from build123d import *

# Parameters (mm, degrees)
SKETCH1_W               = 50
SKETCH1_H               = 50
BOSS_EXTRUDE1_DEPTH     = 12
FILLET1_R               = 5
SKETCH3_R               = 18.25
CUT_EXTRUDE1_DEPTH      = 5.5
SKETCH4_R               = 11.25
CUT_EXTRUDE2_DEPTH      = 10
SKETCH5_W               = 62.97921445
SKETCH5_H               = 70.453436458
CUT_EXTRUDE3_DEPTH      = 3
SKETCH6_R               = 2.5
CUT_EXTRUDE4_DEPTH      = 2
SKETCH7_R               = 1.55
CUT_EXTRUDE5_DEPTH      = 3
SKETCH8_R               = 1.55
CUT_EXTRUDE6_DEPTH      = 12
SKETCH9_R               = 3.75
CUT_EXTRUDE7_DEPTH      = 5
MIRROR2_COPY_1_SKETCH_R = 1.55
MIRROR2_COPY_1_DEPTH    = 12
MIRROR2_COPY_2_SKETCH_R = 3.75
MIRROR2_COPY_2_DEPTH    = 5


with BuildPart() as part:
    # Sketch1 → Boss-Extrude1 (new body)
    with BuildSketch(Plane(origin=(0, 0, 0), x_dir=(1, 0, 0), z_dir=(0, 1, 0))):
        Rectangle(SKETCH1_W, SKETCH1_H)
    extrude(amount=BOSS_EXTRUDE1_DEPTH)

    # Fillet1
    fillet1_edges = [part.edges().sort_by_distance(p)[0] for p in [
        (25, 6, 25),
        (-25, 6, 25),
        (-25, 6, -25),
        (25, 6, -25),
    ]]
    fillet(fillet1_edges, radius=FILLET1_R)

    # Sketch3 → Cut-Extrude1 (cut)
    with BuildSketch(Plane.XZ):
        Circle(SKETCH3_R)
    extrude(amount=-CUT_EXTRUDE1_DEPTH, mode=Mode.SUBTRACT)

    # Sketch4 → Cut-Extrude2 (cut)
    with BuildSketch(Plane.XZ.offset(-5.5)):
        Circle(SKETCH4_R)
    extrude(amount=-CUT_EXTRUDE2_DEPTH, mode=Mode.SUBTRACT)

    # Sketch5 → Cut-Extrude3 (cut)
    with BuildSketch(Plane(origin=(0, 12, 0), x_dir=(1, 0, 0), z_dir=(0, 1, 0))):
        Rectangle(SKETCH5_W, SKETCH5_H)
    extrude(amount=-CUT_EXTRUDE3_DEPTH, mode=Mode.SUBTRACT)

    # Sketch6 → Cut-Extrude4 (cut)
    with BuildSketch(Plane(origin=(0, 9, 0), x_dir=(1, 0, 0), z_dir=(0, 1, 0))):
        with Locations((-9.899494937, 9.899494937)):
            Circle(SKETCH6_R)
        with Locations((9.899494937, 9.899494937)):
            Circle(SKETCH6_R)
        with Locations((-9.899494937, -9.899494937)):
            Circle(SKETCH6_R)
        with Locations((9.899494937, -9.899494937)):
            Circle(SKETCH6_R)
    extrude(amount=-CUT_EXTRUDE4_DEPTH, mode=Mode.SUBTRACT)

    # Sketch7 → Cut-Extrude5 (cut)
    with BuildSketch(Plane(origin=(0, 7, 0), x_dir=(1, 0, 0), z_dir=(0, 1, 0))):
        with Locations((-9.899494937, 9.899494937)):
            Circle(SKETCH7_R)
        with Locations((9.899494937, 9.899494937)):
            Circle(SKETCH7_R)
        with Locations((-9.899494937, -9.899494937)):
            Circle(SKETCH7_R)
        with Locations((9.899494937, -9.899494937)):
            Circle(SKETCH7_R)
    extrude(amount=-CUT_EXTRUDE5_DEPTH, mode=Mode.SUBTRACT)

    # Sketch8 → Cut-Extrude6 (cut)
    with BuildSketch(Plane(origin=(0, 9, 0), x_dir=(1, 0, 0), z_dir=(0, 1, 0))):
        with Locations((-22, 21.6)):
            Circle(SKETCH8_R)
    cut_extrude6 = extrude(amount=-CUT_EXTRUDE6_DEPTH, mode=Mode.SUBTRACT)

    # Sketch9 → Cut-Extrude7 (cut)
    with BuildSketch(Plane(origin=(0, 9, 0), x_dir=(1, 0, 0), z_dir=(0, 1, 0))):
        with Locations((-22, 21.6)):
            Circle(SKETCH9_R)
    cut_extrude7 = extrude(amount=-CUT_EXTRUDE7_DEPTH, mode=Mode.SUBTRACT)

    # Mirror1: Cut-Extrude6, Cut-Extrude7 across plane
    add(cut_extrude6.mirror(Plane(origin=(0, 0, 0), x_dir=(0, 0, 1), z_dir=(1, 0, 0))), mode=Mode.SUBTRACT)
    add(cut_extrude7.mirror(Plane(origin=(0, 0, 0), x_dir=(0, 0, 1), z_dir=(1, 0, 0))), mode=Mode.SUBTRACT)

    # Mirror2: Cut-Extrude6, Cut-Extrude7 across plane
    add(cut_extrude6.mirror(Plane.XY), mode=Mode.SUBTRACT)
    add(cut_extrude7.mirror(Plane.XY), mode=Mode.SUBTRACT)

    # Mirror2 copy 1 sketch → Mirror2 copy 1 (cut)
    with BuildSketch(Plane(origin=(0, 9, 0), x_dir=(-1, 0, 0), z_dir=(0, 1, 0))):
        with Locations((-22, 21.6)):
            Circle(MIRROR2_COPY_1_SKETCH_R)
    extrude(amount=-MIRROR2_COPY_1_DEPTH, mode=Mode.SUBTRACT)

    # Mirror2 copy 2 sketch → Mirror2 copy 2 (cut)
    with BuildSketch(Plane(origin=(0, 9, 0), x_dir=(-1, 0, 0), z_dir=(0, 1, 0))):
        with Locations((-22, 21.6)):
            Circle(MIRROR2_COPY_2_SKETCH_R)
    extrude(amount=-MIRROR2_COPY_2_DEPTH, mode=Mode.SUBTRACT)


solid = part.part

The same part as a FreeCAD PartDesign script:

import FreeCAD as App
import Part
import Sketcher
from FreeCAD import Vector
Q = App.Units.Quantity


def edges_at(feature, points):
    """Names of the edges that pass closest to the given points."""
    edges = feature.Shape.Edges
    near = lambda p: min(range(len(edges)), key=lambda i: edges[i].distToShape(Part.Vertex(*p))[0])
    return sorted({f"Edge{near(p) + 1}" for p in points})


def add_polygon(sketch, points):
    """Adds a closed chain of lines whose ends are joined by coincident constraints."""
    first, n = sketch.GeometryCount, len(points)
    for a, b in zip(points, points[1:] + points[:1]):
        sketch.addGeometry(Part.LineSegment(App.Vector(*a, 0), App.Vector(*b, 0)), False)
    for i in range(n):
        sketch.addConstraint(Sketcher.Constraint("Coincident", first + i, 2, first + (i + 1) % n, 1))

doc = App.newDocument("Part")
body = doc.addObject("PartDesign::Body", "Body")

sketch1 = body.newObject("Sketcher::SketchObject", "Sketch")
sketch1.AttachmentSupport = (doc.getObject("XZ_Plane"), [""])
sketch1.MapMode = "FlatFace"
add_polygon(sketch1, [(-25, -25), (-25, 25), (25, 25), (25, -25)])
sketch1.addConstraint([
    Sketcher.Constraint("Vertical", 0),
    Sketcher.Constraint("Horizontal", 1),
    Sketcher.Constraint("Vertical", 2),
    Sketcher.Constraint("Horizontal", 3),
    Sketcher.Constraint("Symmetric", 0, 2, 2, 2, -1, 1),
    Sketcher.Constraint("Equal", 3, 0),
    Sketcher.Constraint("DistanceX", 1, 1, 1, 2, Q("50 mm")),
])
pad1 = body.newObject("PartDesign::Pad", "Pad")
pad1.Profile = sketch1
pad1.Length = 12
pad1.Reversed = True
doc.recompute()

fillet = body.newObject("PartDesign::Fillet", "Fillet")
fillet.Base = (pad1, edges_at(pad1, [
    (25, 6, 25),
    (-25, 6, 25),
    (-25, 6, -25),
    (25, 6, -25),
]))
fillet.Radius = 5

sketch2 = body.newObject("Sketcher::SketchObject", "Sketch001")
sketch2.AttachmentSupport = (doc.getObject("XZ_Plane"), [""])
sketch2.MapMode = "FlatFace"
sketch2.addGeometry(Part.Circle(Vector(0, 0, 0), Vector(0, 0, 1), 18.25), False)
sketch2.addConstraint([
    Sketcher.Constraint("Coincident", 0, 3, -1, 1),
    Sketcher.Constraint("Diameter", 0, Q("36.5 mm")),
])
pocket1 = body.newObject("PartDesign::Pocket", "Pocket")
pocket1.Profile = sketch2
pocket1.Length = 5.5

sketch3 = body.newObject("Sketcher::SketchObject", "Sketch002")
sketch3.AttachmentSupport = (doc.getObject("XZ_Plane"), [""])
sketch3.MapMode = "FlatFace"
sketch3.AttachmentOffset = App.Placement(Vector(0, 0, -5.5), App.Rotation())
sketch3.addGeometry(Part.Circle(Vector(0, 0, 0), Vector(0, 0, 1), 11.25), False)
sketch3.addConstraint([
    Sketcher.Constraint("Coincident", 0, 3, -1, 1),
    Sketcher.Constraint("Diameter", 0, Q("22.5 mm")),
])
pocket2 = body.newObject("PartDesign::Pocket", "Pocket001")
pocket2.Profile = sketch3
pocket2.Length = 10

sketch4 = body.newObject("Sketcher::SketchObject", "Sketch003")
sketch4.AttachmentSupport = (doc.getObject("XZ_Plane"), [""])
sketch4.MapMode = "FlatFace"
sketch4.AttachmentOffset = App.Placement(Vector(0, 0, -12), App.Rotation())
add_polygon(sketch4, [(-31.489607, -35.226718), (-31.489607, 35.226718), (31.489607, 35.226718), (31.489607, -35.226718)])
sketch4.addConstraint([
    Sketcher.Constraint("Vertical", 0),
    Sketcher.Constraint("Horizontal", 1),
    Sketcher.Constraint("Vertical", 2),
    Sketcher.Constraint("Horizontal", 3),
    Sketcher.Constraint("Symmetric", 0, 2, 2, 2, -1, 1),
    Sketcher.Constraint("DistanceX", 1, 1, 1, 2, Q("62.979214 mm")),
    Sketcher.Constraint("DistanceY", 0, 1, 0, 2, Q("70.453436 mm")),
])
pocket3 = body.newObject("PartDesign::Pocket", "Pocket002")
pocket3.Profile = sketch4
pocket3.Length = 3
pocket3.Reversed = True

sketch5 = body.newObject("Sketcher::SketchObject", "Sketch004")
sketch5.AttachmentSupport = (doc.getObject("XZ_Plane"), [""])
sketch5.MapMode = "FlatFace"
sketch5.AttachmentOffset = App.Placement(Vector(0, 0, -9), App.Rotation())
sketch5.addGeometry([
    Part.Circle(Vector(-9.899495, -9.899495, 0), Vector(0, 0, 1), 2.5),
    Part.Circle(Vector(9.899495, -9.899495, 0), Vector(0, 0, 1), 2.5),
    Part.Circle(Vector(-9.899495, 9.899495, 0), Vector(0, 0, 1), 2.5),
    Part.Circle(Vector(9.899495, 9.899495, 0), Vector(0, 0, 1), 2.5),
], False)
sketch5.addConstraint([
    Sketcher.Constraint("Equal", 0, 1),
    Sketcher.Constraint("Equal", 1, 2),
    Sketcher.Constraint("Equal", 2, 3),
    Sketcher.Constraint("Symmetric", 1, 3, 2, 3, -1, 1),
    Sketcher.Constraint("Symmetric", 0, 3, 3, 3, -1, 1),
    Sketcher.Constraint("Symmetric", 0, 3, 1, 3, -2),
    Sketcher.Constraint("Diameter", 0, Q("5 mm")),
    Sketcher.Constraint("DistanceX", 0, 3, 1, 3, Q("19.79899 mm")),
    Sketcher.Constraint("DistanceY", 0, 3, 2, 3, Q("19.79899 mm")),
])
pocket4 = body.newObject("PartDesign::Pocket", "Pocket003")
pocket4.Profile = sketch5
pocket4.Length = 2
pocket4.Reversed = True

sketch6 = body.newObject("Sketcher::SketchObject", "Sketch005")
sketch6.AttachmentSupport = (doc.getObject("XZ_Plane"), [""])
sketch6.MapMode = "FlatFace"
sketch6.AttachmentOffset = App.Placement(Vector(0, 0, -7), App.Rotation())
sketch6.addGeometry([
    Part.Circle(Vector(-9.899495, -9.899495, 0), Vector(0, 0, 1), 1.55),
    Part.Circle(Vector(9.899495, -9.899495, 0), Vector(0, 0, 1), 1.55),
    Part.Circle(Vector(-9.899495, 9.899495, 0), Vector(0, 0, 1), 1.55),
    Part.Circle(Vector(9.899495, 9.899495, 0), Vector(0, 0, 1), 1.55),
], False)
sketch6.addConstraint([
    Sketcher.Constraint("Equal", 0, 1),
    Sketcher.Constraint("Equal", 1, 2),
    Sketcher.Constraint("Equal", 2, 3),
    Sketcher.Constraint("Symmetric", 1, 3, 2, 3, -1, 1),
    Sketcher.Constraint("Symmetric", 0, 3, 3, 3, -1, 1),
    Sketcher.Constraint("Symmetric", 0, 3, 1, 3, -2),
    Sketcher.Constraint("Diameter", 0, Q("3.1 mm")),
    Sketcher.Constraint("DistanceX", 0, 3, 1, 3, Q("19.79899 mm")),
    Sketcher.Constraint("DistanceY", 0, 3, 2, 3, Q("19.79899 mm")),
])
pocket5 = body.newObject("PartDesign::Pocket", "Pocket004")
pocket5.Profile = sketch6
pocket5.Length = 3
pocket5.Reversed = True

sketch7 = body.newObject("Sketcher::SketchObject", "Sketch006")
sketch7.AttachmentSupport = (doc.getObject("XZ_Plane"), [""])
sketch7.MapMode = "FlatFace"
sketch7.AttachmentOffset = App.Placement(Vector(0, 0, -9), App.Rotation())
sketch7.addGeometry(Part.Circle(Vector(-22, -21.6, 0), Vector(0, 0, 1), 1.55), False)
sketch7.addConstraint([
    Sketcher.Constraint("Diameter", 0, Q("3.1 mm")),
    Sketcher.Constraint("DistanceX", 0, 3, -1, 1, Q("22 mm")),
    Sketcher.Constraint("DistanceY", 0, 3, -1, 1, Q("21.6 mm")),
])
pocket6 = body.newObject("PartDesign::Pocket", "Pocket005")
pocket6.Profile = sketch7
pocket6.Length = 12
pocket6.Reversed = True

sketch8 = body.newObject("Sketcher::SketchObject", "Sketch007")
sketch8.AttachmentSupport = (doc.getObject("XZ_Plane"), [""])
sketch8.MapMode = "FlatFace"
sketch8.AttachmentOffset = App.Placement(Vector(0, 0, -9), App.Rotation())
sketch8.addGeometry(Part.Circle(Vector(-22, -21.6, 0), Vector(0, 0, 1), 3.75), False)
sketch8.addConstraint([
    Sketcher.Constraint("Diameter", 0, Q("7.5 mm")),
    Sketcher.Constraint("DistanceX", 0, 3, -1, 1, Q("22 mm")),
    Sketcher.Constraint("DistanceY", 0, 3, -1, 1, Q("21.6 mm")),
])
pocket7 = body.newObject("PartDesign::Pocket", "Pocket006")
pocket7.Profile = sketch8
pocket7.Length = 5
pocket7.Reversed = True
doc.recompute()

mirrored = body.newObject("PartDesign::Mirrored", "Mirrored")
mirrored.Originals = [pocket6, pocket7]
mirrored.MirrorPlane = (doc.getObject("YZ_Plane"), [""])
body.Tip = mirrored
doc.recompute()

mirrored2 = body.newObject("PartDesign::Mirrored", "Mirrored001")
mirrored2.Originals = [pocket6, pocket7]
mirrored2.MirrorPlane = (doc.getObject("XY_Plane"), [""])
body.Tip = mirrored2

sketch9 = body.newObject("Sketcher::SketchObject", "Sketch008")
sketch9.AttachmentSupport = (doc.getObject("XZ_Plane"), [""])
sketch9.MapMode = "FlatFace"
sketch9.AttachmentOffset = App.Placement(Vector(0, 0, -9), App.Rotation())
sketch9.addGeometry(Part.Circle(Vector(22, 21.6, 0), Vector(0, 0, 1), 1.55), False)
sketch9.addConstraint([
    Sketcher.Constraint("Diameter", 0, Q("3.1 mm")),
    Sketcher.Constraint("DistanceX", -1, 1, 0, 3, Q("22 mm")),
    Sketcher.Constraint("DistanceY", -1, 1, 0, 3, Q("21.6 mm")),
])
pocket8 = body.newObject("PartDesign::Pocket", "Pocket007")
pocket8.Profile = sketch9
pocket8.Length = 12
pocket8.Reversed = True

sketch10 = body.newObject("Sketcher::SketchObject", "Sketch009")
sketch10.AttachmentSupport = (doc.getObject("XZ_Plane"), [""])
sketch10.MapMode = "FlatFace"
sketch10.AttachmentOffset = App.Placement(Vector(0, 0, -9), App.Rotation())
sketch10.addGeometry(Part.Circle(Vector(22, 21.6, 0), Vector(0, 0, 1), 3.75), False)
sketch10.addConstraint([
    Sketcher.Constraint("Diameter", 0, Q("7.5 mm")),
    Sketcher.Constraint("DistanceX", -1, 1, 0, 3, Q("22 mm")),
    Sketcher.Constraint("DistanceY", -1, 1, 0, 3, Q("21.6 mm")),
])
pocket9 = body.newObject("PartDesign::Pocket", "Pocket008")
pocket9.Profile = sketch10
pocket9.Length = 5
pocket9.Reversed = True

doc.recompute()
